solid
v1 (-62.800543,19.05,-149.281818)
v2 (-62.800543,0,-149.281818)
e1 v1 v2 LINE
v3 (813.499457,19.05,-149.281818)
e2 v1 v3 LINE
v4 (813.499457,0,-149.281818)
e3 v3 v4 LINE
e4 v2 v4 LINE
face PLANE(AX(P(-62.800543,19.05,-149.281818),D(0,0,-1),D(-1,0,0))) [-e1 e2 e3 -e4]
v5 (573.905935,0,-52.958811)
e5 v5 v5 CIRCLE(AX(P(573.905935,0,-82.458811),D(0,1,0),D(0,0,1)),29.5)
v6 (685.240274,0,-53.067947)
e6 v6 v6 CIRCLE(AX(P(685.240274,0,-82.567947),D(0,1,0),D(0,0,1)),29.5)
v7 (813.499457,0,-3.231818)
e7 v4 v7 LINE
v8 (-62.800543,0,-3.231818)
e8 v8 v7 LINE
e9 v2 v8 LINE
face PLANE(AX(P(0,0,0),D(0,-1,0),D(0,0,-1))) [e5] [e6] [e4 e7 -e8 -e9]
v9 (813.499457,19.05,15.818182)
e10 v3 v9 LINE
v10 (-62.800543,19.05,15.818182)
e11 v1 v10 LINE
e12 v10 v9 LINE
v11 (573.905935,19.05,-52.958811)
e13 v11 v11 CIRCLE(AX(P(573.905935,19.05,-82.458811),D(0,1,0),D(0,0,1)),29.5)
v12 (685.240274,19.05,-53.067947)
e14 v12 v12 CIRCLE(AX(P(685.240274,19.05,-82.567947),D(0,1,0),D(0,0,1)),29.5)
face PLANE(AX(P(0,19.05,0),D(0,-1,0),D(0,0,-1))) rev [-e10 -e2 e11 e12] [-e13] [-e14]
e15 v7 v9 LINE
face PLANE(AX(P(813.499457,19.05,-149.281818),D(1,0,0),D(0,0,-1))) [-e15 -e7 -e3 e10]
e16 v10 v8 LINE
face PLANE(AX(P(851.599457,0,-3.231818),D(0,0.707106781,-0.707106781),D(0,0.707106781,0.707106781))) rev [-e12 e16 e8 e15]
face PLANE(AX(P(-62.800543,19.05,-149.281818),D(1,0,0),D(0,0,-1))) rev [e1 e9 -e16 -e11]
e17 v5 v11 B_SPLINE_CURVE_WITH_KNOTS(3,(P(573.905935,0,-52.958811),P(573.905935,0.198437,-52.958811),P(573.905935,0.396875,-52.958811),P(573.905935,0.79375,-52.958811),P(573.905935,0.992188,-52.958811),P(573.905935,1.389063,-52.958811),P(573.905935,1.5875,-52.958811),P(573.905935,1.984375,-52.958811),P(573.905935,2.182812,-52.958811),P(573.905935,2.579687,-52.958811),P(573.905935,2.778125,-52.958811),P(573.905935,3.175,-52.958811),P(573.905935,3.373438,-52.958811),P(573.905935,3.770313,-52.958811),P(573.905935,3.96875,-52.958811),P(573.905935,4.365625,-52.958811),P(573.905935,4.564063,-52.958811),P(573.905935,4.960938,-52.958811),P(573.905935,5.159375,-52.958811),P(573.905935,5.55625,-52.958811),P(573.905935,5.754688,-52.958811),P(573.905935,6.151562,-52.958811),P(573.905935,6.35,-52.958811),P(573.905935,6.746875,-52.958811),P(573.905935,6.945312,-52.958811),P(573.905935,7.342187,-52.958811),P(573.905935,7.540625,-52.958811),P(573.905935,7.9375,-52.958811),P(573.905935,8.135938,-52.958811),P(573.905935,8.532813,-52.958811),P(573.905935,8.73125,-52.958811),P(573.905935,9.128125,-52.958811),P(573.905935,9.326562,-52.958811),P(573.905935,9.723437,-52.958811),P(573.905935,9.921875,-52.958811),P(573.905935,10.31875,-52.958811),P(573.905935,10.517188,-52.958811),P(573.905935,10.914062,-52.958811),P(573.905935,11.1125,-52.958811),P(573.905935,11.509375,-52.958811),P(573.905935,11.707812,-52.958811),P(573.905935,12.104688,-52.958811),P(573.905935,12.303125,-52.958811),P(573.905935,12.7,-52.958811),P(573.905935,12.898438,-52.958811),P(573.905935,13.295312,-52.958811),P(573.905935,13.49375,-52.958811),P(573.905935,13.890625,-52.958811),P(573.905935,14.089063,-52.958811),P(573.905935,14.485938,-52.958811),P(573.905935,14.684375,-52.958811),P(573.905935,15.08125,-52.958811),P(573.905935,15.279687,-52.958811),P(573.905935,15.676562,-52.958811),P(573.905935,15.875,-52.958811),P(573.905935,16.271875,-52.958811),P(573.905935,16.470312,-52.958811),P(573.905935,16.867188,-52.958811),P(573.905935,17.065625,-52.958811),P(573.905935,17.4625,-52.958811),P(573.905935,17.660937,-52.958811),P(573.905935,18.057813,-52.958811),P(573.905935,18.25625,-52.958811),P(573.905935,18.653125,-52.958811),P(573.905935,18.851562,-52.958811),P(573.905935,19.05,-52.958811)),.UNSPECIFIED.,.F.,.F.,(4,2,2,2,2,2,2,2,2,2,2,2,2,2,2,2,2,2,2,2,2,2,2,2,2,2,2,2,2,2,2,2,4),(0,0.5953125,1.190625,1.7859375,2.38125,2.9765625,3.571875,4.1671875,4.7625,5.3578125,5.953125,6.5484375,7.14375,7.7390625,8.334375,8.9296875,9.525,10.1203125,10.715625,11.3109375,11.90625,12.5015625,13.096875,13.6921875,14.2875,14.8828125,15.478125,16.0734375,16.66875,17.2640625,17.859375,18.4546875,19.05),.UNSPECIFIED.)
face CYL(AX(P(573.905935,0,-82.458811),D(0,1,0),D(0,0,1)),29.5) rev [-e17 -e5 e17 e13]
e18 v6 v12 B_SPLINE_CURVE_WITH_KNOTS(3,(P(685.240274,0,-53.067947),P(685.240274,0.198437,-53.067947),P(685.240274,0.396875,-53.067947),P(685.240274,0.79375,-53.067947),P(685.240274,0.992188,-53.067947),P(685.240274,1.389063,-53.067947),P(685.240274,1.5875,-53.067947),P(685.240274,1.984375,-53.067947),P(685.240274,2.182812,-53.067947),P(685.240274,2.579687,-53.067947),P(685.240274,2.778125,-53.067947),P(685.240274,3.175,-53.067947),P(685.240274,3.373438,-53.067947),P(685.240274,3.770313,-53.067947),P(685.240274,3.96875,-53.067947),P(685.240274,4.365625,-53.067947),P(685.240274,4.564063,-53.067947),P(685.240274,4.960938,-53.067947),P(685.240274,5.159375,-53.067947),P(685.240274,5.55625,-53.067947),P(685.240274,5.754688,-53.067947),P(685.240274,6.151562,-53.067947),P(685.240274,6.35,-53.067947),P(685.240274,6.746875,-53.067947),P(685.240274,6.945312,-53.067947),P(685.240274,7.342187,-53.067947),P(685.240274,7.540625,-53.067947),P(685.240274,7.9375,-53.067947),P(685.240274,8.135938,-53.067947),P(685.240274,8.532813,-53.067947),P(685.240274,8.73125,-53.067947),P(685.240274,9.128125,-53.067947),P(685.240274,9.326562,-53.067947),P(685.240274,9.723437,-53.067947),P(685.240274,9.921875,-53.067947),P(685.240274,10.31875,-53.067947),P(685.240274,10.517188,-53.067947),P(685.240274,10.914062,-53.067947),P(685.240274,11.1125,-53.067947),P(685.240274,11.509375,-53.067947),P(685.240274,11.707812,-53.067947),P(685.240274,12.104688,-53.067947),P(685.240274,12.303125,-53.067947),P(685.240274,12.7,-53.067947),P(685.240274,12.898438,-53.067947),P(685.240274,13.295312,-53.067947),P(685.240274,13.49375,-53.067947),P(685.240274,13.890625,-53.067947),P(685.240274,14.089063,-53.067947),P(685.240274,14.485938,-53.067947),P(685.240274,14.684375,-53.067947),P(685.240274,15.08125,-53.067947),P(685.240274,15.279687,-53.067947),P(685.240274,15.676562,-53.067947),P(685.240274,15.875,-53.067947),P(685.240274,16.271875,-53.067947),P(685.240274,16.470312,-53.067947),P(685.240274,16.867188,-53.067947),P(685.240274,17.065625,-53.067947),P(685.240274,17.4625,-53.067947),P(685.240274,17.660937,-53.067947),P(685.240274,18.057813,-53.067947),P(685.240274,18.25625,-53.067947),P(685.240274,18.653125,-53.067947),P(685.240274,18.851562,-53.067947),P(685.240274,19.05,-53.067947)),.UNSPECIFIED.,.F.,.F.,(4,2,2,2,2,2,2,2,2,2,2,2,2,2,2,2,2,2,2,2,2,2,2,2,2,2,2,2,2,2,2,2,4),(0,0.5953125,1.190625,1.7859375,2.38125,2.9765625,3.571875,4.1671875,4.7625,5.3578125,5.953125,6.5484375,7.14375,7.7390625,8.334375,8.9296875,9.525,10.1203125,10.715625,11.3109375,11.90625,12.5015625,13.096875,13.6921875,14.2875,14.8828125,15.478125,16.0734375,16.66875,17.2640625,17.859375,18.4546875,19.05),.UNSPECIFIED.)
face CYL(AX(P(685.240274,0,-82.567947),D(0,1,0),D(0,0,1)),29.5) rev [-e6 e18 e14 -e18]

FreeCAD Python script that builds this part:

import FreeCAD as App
import Part
import Sketcher

V = App.Vector
Q = App.Units.Quantity

doc = App.newDocument("Part")
body = doc.addObject("PartDesign::Body", "Body")

sketch1 = body.newObject("Sketcher::SketchObject", "Sketch")
sketch1.AttachmentSupport = (doc.getObject("XZ_Plane"), [""])
sketch1.MapMode = "FlatFace"
sketch1.addGeometry([
    Part.LineSegment(V(-62.800543, -149.281818, 0), V(-62.800543, 15.818182, 0)),
    Part.LineSegment(V(-62.800543, 15.818182, 0), V(813.499457, 15.818182, 0)),
    Part.LineSegment(V(813.499457, 15.818182, 0), V(813.499457, -149.281818, 0)),
    Part.LineSegment(V(813.499457, -149.281818, 0), V(-62.800543, -149.281818, 0)),
], False)
sketch1.addConstraint([
    Sketcher.Constraint("Coincident", 0, 2, 1, 1),
    Sketcher.Constraint("Coincident", 1, 2, 2, 1),
    Sketcher.Constraint("Coincident", 2, 2, 3, 1),
    Sketcher.Constraint("Coincident", 3, 2, 0, 1),
    Sketcher.Constraint("Vertical", 0),
    Sketcher.Constraint("Horizontal", 1),
    Sketcher.Constraint("Vertical", 2),
    Sketcher.Constraint("Horizontal", 3),
    Sketcher.Constraint("DistanceX", 1, 1, 1, 2, Q("34.5 in")),
    Sketcher.Constraint("DistanceY", 0, 1, 0, 2, Q("6.5 in")),
    Sketcher.Constraint("DistanceY", -1, 1, 0, 2, 15.818182),
    Sketcher.Constraint("DistanceX", 0, 2, -1, 1, 62.800543),
])
pad1 = body.newObject("PartDesign::Pad", "Pad")
pad1.Profile = sketch1
pad1.Length = Q("0.75 in")
pad1.Reversed = True

sketch2 = body.newObject("Sketcher::SketchObject", "Sketch001")
sketch2.AttachmentSupport = (doc.getObject("XZ_Plane"), [""])
sketch2.MapMode = "FlatFace"
sketch2.AttachmentOffset = App.Placement(V(0, 0, -0.75 * 25.4), App.Rotation())
sketch2.addGeometry(Part.Circle(V(573.905935, -82.458811, 0), V(0, 0, 1), 29.5), False)
sketch2.addConstraint([
    Sketcher.Constraint("Diameter", 0, 59.0),
    Sketcher.Constraint("DistanceY", 0, 3, -1, 1, 82.458811),
    Sketcher.Constraint("DistanceX", -1, 1, 0, 3, 573.905935),
])
pocket1 = body.newObject("PartDesign::Pocket", "Pocket")
pocket1.Profile = sketch2
pocket1.Length = Q("0.75 in")
pocket1.Reversed = True

sketch3 = body.newObject("Sketcher::SketchObject", "Sketch002")
sketch3.AttachmentSupport = (doc.getObject("XZ_Plane"), [""])
sketch3.MapMode = "FlatFace"
sketch3.AttachmentOffset = App.Placement(V(0, 0, -0.75 * 25.4), App.Rotation())
sketch3.addGeometry(Part.Circle(V(685.240274, -82.567947, 0), V(0, 0, 1), 29.5), False)
sketch3.addConstraint([
    Sketcher.Constraint("Diameter", 0, 59.0),
    Sketcher.Constraint("DistanceX", -1, 1, 0, 3, 685.240274),
    Sketcher.Constraint("DistanceY", 0, 3, -1, 1, 82.567947),
])
pocket2 = body.newObject("PartDesign::Pocket", "Pocket001")
pocket2.Profile = sketch3
pocket2.Length = Q("0.75 in")
pocket2.Reversed = True

sketch4 = body.newObject("Sketcher::SketchObject", "Sketch003")
sketch4.AttachmentSupport = (doc.getObject("YZ_Plane"), [""])
sketch4.MapMode = "FlatFace"
sketch4.AttachmentOffset = App.Placement(V(0, 0, -62.800543), App.Rotation())
sketch4.addGeometry([
    Part.LineSegment(V(19.05, 15.818182, 0), V(0, -3.231818, 0)),
    Part.LineSegment(V(0, -3.231818, 0), V(0, 15.818182, 0)),
    Part.LineSegment(V(0, 15.818182, 0), V(19.05, 15.818182, 0)),
], False)
sketch4.addConstraint([
    Sketcher.Constraint("Coincident", 0, 2, 1, 1),
    Sketcher.Constraint("Coincident", 1, 2, 2, 1),
    Sketcher.Constraint("Coincident", 2, 2, 0, 1),
    Sketcher.Constraint("Vertical", 1),
    Sketcher.Constraint("Horizontal", 2),
    Sketcher.Constraint("PointOnObject", 0, 2, -2),
    Sketcher.Constraint("Equal", 2, 1),
    Sketcher.Constraint("DistanceX", 2, 1, 2, 2, Q("0.75 in")),
    Sketcher.Constraint("DistanceY", 0, 2, -1, 1, 3.231818),
])
pocket3 = body.newObject("PartDesign::Pocket", "Pocket002")
pocket3.Profile = sketch4
pocket3.Length = Q("36 in")
pocket3.Reversed = True

doc.recompute()
